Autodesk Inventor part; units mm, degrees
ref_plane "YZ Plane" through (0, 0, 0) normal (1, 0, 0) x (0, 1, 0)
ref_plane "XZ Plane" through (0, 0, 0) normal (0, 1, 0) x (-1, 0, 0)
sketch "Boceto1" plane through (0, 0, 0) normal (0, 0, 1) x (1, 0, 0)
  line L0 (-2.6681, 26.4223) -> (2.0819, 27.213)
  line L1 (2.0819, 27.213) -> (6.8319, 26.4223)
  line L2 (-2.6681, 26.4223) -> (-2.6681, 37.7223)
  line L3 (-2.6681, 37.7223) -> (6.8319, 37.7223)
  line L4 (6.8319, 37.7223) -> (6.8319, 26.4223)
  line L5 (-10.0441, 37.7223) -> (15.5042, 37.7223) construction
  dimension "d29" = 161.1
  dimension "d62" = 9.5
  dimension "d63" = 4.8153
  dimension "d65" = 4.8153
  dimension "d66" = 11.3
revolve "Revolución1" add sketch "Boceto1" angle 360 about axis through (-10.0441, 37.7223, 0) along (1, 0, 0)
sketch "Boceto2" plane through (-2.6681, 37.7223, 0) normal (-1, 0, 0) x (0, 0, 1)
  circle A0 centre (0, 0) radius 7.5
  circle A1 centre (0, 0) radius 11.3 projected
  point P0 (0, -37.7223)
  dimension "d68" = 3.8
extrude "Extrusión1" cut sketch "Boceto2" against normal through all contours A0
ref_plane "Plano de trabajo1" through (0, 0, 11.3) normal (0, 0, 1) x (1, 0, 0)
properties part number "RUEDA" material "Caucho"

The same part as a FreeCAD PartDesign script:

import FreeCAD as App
import Part
import Sketcher


def add_polygon(sketch, points):
    """Adds a closed chain of lines whose ends are joined by coincident constraints."""
    first, n = sketch.GeometryCount, len(points)
    for a, b in zip(points, points[1:] + points[:1]):
        sketch.addGeometry(Part.LineSegment(App.Vector(*a, 0), App.Vector(*b, 0)), False)
    for i in range(n):
        sketch.addConstraint(Sketcher.Constraint("Coincident", first + i, 2, first + (i + 1) % n, 1))

doc = App.newDocument("Part")
body = doc.addObject("PartDesign::Body", "Body")

sketch1 = body.newObject("Sketcher::SketchObject", "Sketch")
sketch1.AttachmentSupport = (doc.getObject("XY_Plane"), [""])
sketch1.MapMode = "FlatFace"
add_polygon(sketch1, [(-2.7, 37.7), (-2.7, 26.4), (2.1, 27.2), (6.8, 26.4), (6.8, 37.7)])
sketch1.addGeometry(Part.LineSegment(App.Vector(-2.7, 37.7, 0), App.Vector(6.8, 37.7, 0)), True)
sketch1.addConstraint([
    Sketcher.Constraint("Vertical", 0),
    Sketcher.Constraint("Vertical", 3),
    Sketcher.Constraint("Horizontal", 4),
    Sketcher.Constraint("Horizontal", 5),
    Sketcher.Constraint("Coincident", 5, 1, 4, 2),
    Sketcher.Constraint("Horizontal", 0, 2, 2, 2),
    Sketcher.Constraint("Vertical", 2, 2, 5, 2),
    Sketcher.Constraint("Equal", 1, 2),
    Sketcher.Constraint("DistanceX", 4, 2, 4, 1, 9.5),
    Sketcher.Constraint("DistanceY", 0, 2, 0, 1, 11.3),
    Sketcher.Constraint("Distance", 1, 4.8154),
    Sketcher.Constraint("DistanceX", 0, 2, -1, 1, 2.668),
    Sketcher.Constraint("DistanceY", -1, 1, 1, 2, 27.213),
])
revolution = body.newObject("PartDesign::Revolution", "Revolution")
revolution.Profile = sketch1
revolution.ReferenceAxis = (sketch1, ["Axis0"])
revolution.Angle = 360

sketch2 = body.newObject("Sketcher::SketchObject", "Sketch001")
sketch2.AttachmentSupport = (doc.getObject("YZ_Plane"), [""])
sketch2.MapMode = "FlatFace"
sketch2.AttachmentOffset = App.Placement(App.Vector(0, 0, -2.6681), App.Rotation())
sketch2.addGeometry(Part.Circle(App.Vector(38, 0, 0), App.Vector(0, 0, 1), 8), False)
sketch2.addConstraint([
    Sketcher.Constraint("PointOnObject", 0, 3, -1),
    Sketcher.Constraint("Diameter", 0, 15.0),
    Sketcher.Constraint("DistanceX", -1, 1, 0, 3, 37.7223),
])
pocket1 = body.newObject("PartDesign::Pocket", "Pocket")
pocket1.Profile = sketch2
pocket1.Type = "ThroughAll"
pocket1.Reversed = True

doc.recompute()
